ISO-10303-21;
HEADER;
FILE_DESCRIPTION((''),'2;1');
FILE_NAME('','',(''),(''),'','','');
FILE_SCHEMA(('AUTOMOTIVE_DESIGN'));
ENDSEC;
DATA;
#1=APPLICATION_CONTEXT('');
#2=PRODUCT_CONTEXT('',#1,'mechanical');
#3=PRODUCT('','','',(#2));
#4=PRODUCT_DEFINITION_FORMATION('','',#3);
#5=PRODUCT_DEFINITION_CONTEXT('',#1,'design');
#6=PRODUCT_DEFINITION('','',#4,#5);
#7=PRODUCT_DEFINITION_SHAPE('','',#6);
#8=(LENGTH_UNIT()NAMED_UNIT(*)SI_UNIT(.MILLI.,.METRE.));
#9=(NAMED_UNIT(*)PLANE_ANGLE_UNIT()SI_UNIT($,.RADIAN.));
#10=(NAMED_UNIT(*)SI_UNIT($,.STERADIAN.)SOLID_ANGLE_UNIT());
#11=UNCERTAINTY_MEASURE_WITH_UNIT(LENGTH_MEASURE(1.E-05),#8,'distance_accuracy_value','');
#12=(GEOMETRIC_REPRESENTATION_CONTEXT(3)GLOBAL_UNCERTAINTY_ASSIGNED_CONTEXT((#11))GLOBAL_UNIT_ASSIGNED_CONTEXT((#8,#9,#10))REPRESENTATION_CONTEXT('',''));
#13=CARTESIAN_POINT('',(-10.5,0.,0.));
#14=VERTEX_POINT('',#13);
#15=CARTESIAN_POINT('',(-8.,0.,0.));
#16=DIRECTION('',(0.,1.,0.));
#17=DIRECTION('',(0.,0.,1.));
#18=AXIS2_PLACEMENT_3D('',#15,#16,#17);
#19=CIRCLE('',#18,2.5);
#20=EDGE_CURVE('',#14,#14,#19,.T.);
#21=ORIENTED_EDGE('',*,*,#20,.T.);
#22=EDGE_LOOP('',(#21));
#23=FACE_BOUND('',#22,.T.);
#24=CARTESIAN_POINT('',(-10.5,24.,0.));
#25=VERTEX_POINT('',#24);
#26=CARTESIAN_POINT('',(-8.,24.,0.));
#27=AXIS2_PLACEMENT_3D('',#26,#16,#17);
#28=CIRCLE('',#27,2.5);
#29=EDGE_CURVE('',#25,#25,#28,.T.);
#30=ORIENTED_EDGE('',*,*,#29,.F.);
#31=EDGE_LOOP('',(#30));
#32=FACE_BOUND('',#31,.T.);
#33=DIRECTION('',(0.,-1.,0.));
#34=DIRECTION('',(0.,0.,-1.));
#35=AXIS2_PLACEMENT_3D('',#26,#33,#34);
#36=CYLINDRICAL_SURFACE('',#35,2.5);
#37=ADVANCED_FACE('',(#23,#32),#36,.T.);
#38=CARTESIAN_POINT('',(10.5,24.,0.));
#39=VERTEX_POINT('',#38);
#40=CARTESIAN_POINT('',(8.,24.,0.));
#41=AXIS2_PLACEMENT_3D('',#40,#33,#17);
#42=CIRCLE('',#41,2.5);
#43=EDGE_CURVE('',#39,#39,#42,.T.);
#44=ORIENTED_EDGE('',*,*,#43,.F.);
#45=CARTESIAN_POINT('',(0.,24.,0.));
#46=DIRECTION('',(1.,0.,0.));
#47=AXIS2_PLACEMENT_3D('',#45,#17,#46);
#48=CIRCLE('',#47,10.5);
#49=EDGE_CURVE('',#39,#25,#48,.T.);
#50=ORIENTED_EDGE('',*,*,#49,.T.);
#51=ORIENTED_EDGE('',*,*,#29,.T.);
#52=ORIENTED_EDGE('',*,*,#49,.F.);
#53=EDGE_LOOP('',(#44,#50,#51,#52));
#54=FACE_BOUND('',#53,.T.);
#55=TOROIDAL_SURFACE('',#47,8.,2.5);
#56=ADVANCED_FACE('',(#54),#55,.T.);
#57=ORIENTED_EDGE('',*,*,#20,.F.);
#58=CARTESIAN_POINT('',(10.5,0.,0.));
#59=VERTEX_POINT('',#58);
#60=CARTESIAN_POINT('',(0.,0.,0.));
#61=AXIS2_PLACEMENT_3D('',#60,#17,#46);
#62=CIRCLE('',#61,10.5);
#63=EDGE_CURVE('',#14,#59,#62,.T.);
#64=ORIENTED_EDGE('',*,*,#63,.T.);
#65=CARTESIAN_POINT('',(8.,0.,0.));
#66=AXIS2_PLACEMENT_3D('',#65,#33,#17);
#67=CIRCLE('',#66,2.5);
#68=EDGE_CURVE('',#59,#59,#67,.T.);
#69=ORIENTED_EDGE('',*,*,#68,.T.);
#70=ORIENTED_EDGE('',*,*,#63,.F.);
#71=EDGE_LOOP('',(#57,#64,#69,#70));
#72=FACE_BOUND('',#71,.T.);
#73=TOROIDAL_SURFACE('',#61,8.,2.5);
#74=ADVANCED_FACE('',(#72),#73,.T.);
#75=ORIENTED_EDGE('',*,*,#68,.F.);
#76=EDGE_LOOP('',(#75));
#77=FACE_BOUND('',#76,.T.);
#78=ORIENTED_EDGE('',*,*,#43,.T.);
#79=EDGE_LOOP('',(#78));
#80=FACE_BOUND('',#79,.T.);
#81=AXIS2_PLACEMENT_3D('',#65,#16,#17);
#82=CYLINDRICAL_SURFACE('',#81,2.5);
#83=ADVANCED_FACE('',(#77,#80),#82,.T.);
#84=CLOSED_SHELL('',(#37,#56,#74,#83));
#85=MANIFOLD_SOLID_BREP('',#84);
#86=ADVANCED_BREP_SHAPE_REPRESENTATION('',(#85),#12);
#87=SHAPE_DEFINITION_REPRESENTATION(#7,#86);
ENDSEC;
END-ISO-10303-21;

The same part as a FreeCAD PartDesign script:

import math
import FreeCAD as App
import Part
import Sketcher
Q = App.Units.Quantity

doc = App.newDocument("Part")
body = doc.addObject("PartDesign::Body", "Body")

# Sketch on XZ plane
sketch1 = body.newObject("Sketcher::SketchObject", "Sketch")
sketch1.AttachmentSupport = (doc.getObject("XZ_Plane"), [""])
sketch1.MapMode = "FlatFace"
sketch1.addGeometry(Part.Circle(App.Vector(-8, 0, 0), App.Vector(0, 0, 1), 2.5), False)
sketch1.addConstraint([
    Sketcher.Constraint("PointOnObject", 0, 3, -1),
    Sketcher.Constraint("Diameter", 0, Q("5 mm")),
    Sketcher.Constraint("DistanceX", 0, 3, -1, 1, Q("8 mm")),
])

# Sketch on XY plane
sketch2 = body.newObject("Sketcher::SketchObject", "Sketch001")
sketch2.AttachmentSupport = (doc.getObject("XY_Plane"), [""])
sketch2.MapMode = "FlatFace"
sketch2.addGeometry([
    Part.LineSegment(App.Vector(-8, 0, 0), App.Vector(-8, 24, 0)),
    Part.ArcOfCircle(Part.Circle(App.Vector(0, 24, 0), App.Vector(0, 0, 1), 8), math.radians(0), math.radians(180)),
    Part.LineSegment(App.Vector(8, 24, 0), App.Vector(8, 0, 0)),
    Part.ArcOfCircle(Part.Circle(App.Vector(0, 0, 0), App.Vector(0, 0, 1), 8), math.radians(180), math.radians(360)),
], False)
sketch2.addConstraint([
    Sketcher.Constraint("Tangent", 0, 2, 1, 2),
    Sketcher.Constraint("Tangent", 1, 1, 2, 1),
    Sketcher.Constraint("Tangent", 2, 2, 3, 2),
    Sketcher.Constraint("Tangent", 3, 1, 0, 1),
    Sketcher.Constraint("Vertical", 0),
    Sketcher.Constraint("Vertical", 2),
    Sketcher.Constraint("Coincident", 3, 3, -1, 1),
    Sketcher.Constraint("Radius", 1, Q("8 mm")),
    Sketcher.Constraint("DistanceY", 0, 1, 0, 2, Q("24 mm")),
])
doc.recompute()

additivepipe = body.newObject("PartDesign::AdditivePipe", "AdditivePipe")
additivepipe.Profile = sketch1
additivepipe.Spine = (sketch2, ["Edge1", "Edge2", "Edge3", "Edge4"])

doc.recompute()
